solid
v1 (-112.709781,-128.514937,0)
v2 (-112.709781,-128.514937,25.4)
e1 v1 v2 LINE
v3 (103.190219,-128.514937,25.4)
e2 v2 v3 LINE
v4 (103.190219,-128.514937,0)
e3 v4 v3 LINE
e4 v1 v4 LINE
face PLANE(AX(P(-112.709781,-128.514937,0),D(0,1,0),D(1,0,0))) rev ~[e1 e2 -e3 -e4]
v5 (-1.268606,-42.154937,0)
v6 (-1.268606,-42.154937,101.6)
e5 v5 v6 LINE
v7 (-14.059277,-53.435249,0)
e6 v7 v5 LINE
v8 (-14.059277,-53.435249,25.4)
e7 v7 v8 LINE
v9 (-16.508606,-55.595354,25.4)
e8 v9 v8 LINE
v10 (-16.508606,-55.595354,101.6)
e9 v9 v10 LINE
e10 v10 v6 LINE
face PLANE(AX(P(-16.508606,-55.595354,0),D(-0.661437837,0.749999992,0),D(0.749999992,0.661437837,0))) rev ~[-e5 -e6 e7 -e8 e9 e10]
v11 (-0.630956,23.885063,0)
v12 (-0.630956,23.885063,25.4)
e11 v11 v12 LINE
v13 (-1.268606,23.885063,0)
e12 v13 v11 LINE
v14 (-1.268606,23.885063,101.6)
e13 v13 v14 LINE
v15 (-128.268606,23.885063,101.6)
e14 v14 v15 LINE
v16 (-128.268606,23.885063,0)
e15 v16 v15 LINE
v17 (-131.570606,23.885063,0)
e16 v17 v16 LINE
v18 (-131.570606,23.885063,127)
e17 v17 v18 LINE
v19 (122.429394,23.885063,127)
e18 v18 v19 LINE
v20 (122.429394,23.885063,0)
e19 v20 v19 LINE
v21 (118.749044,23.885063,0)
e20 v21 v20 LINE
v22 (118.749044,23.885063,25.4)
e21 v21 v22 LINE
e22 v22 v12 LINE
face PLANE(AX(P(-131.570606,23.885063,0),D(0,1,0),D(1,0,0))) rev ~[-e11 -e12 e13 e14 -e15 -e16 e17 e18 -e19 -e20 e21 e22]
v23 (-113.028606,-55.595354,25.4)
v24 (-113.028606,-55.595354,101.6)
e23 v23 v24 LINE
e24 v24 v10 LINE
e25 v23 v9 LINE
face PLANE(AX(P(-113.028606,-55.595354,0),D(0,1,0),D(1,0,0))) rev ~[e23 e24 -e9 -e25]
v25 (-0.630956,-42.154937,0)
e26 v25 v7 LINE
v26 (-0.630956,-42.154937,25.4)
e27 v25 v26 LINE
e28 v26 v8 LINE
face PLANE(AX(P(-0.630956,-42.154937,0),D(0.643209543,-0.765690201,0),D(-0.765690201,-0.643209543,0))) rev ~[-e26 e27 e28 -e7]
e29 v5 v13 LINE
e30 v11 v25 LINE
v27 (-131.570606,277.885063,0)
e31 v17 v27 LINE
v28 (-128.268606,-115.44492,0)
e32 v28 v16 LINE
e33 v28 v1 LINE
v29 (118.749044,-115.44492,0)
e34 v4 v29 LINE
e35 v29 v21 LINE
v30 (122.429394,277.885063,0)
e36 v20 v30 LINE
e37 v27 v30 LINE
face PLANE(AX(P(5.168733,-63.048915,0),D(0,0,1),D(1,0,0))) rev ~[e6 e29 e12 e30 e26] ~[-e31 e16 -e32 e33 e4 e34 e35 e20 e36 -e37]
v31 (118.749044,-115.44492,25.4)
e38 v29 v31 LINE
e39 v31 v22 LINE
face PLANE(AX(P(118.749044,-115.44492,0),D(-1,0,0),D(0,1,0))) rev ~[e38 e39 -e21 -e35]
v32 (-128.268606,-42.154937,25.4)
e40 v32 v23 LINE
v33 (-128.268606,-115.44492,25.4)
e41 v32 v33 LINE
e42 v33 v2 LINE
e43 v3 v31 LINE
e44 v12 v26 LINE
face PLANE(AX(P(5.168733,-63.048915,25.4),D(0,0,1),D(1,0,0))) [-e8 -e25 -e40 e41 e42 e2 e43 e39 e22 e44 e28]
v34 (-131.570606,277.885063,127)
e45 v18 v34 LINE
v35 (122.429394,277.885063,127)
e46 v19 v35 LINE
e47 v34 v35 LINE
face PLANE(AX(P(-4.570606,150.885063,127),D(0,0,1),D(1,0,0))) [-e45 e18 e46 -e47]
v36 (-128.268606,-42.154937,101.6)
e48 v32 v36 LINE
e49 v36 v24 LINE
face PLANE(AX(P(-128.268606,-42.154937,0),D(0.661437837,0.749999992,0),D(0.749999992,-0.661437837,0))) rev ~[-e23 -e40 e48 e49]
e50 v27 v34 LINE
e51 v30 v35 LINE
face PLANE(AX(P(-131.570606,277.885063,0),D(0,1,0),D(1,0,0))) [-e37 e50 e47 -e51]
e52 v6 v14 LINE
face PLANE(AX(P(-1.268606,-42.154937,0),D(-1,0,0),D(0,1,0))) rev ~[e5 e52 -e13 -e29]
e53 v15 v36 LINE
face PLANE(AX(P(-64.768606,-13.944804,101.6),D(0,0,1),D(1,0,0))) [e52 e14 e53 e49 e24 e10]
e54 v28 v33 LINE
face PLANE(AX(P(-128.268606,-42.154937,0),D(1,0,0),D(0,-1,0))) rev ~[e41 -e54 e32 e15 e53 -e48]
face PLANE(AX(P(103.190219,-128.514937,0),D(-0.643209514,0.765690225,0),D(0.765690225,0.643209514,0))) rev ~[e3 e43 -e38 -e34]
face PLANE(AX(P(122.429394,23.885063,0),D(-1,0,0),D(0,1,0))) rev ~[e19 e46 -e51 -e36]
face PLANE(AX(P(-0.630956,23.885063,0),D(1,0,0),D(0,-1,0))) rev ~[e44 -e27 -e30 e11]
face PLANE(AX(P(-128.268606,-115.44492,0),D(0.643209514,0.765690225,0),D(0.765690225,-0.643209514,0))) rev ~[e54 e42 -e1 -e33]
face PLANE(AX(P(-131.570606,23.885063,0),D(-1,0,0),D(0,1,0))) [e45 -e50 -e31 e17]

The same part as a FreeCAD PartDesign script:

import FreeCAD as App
import Part
import Sketcher

V = App.Vector
Q = App.Units.Quantity

doc = App.newDocument("Part")
params = doc.addObject("Spreadsheet::Sheet", "Params")
for row, (alias, value) in enumerate([
    ("sketch1_width", "10 in"),
    ("pad1_length", "5 in"),
    ("sketch2_width", "5 in"),
    ("sketch2_width2", "3.8 in"),
    ("sketch2_height", "2.6 in"),
    ("sketch2_length", "0.8 in"),
    ("pad2_length", "4 in"),
    ("sketch3_width", "4.7 in"),
    ("sketch3_width2", "3.8 in"),
    ("sketch3_height", "2.6 in"),
    ("sketch3_length", "0.8 in"),
    ("pad3_length", "1 in"),
], start=1):
    params.set(f"A{row}", alias)
    params.set(f"B{row}", "=" + value)
    params.setAlias(f"B{row}", alias)

body = doc.addObject("PartDesign::Body", "Body")

sketch1 = body.newObject("Sketcher::SketchObject", "Sketch")
sketch1.AttachmentSupport = (doc.getObject("XY_Plane"), [""])
sketch1.MapMode = "FlatFace"
sketch1.addGeometry(Part.LineSegment(V(-132, 278, 0), V(-132, 24, 0)), False)
sketch1.addGeometry(Part.LineSegment(V(-132, 24, 0), V(122, 24, 0)), False)
sketch1.addGeometry(Part.LineSegment(V(122, 24, 0), V(122, 278, 0)), False)
sketch1.addGeometry(Part.LineSegment(V(122, 278, 0), V(-132, 278, 0)), False)
sketch1.addConstraint(Sketcher.Constraint("Coincident", 0, 2, 1, 1))
sketch1.addConstraint(Sketcher.Constraint("Coincident", 1, 2, 2, 1))
sketch1.addConstraint(Sketcher.Constraint("Coincident", 2, 2, 3, 1))
sketch1.addConstraint(Sketcher.Constraint("Coincident", 3, 2, 0, 1))
sketch1.addConstraint(Sketcher.Constraint("Vertical", 0))
sketch1.addConstraint(Sketcher.Constraint("Horizontal", 1))
sketch1.addConstraint(Sketcher.Constraint("Vertical", 2))
sketch1.addConstraint(Sketcher.Constraint("Horizontal", 3))
sketch1.addConstraint(Sketcher.Constraint("Equal", 3, 0))
sketch1.addConstraint(Sketcher.Constraint("DistanceX", 1, 1, 1, 2, Q("10 in")))
sketch1.addConstraint(Sketcher.Constraint("DistanceX", 0, 2, -1, 1, Q("131.570606 mm")))
sketch1.addConstraint(Sketcher.Constraint("DistanceY", -1, 1, 0, 2, Q("23.885063 mm")))
sketch1.setExpression("Constraints[9]", "Params.sketch1_width")
pad1 = body.newObject("PartDesign::Pad", "Pad")
pad1.Profile = sketch1
pad1.setExpression("Length", "Params.pad1_length")

sketch2 = body.newObject("Sketcher::SketchObject", "Sketch001")
sketch2.AttachmentSupport = (doc.getObject("XY_Plane"), [""])
sketch2.MapMode = "FlatFace"
sketch2.addGeometry(Part.LineSegment(V(-1, 24, 0), V(-128, 24, 0)), False)
sketch2.addGeometry(Part.LineSegment(V(-128, 24, 0), V(-128, -42, 0)), False)
sketch2.addGeometry(Part.LineSegment(V(-128, -42, 0), V(-113, -56, 0)), False)
sketch2.addGeometry(Part.LineSegment(V(-113, -56, 0), V(-17, -56, 0)), False)
sketch2.addGeometry(Part.LineSegment(V(-17, -56, 0), V(-1, -42, 0)), False)
sketch2.addGeometry(Part.LineSegment(V(-1, -42, 0), V(-1, 24, 0)), False)
sketch2.addConstraint(Sketcher.Constraint("Coincident", 0, 2, 1, 1))
sketch2.addConstraint(Sketcher.Constraint("Coincident", 1, 2, 2, 1))
sketch2.addConstraint(Sketcher.Constraint("Coincident", 2, 2, 3, 1))
sketch2.addConstraint(Sketcher.Constraint("Coincident", 3, 2, 4, 1))
sketch2.addConstraint(Sketcher.Constraint("Coincident", 4, 2, 5, 1))
sketch2.addConstraint(Sketcher.Constraint("Coincident", 5, 2, 0, 1))
sketch2.addConstraint(Sketcher.Constraint("Horizontal", 0))
sketch2.addConstraint(Sketcher.Constraint("Vertical", 1))
sketch2.addConstraint(Sketcher.Constraint("Horizontal", 3))
sketch2.addConstraint(Sketcher.Constraint("Vertical", 5))
sketch2.addConstraint(Sketcher.Constraint("Horizontal", 1, 2, 4, 2))
sketch2.addConstraint(Sketcher.Constraint("Equal", 2, 4))
sketch2.addConstraint(Sketcher.Constraint("DistanceX", 0, 2, 0, 1, Q("5 in")))
sketch2.addConstraint(Sketcher.Constraint("DistanceX", 3, 1, 3, 2, Q("3.8 in")))
sketch2.addConstraint(Sketcher.Constraint("DistanceY", 1, 2, 1, 1, Q("2.6 in")))
sketch2.addConstraint(Sketcher.Constraint("Distance", 2, Q("0.8 in")))
sketch2.addConstraint(Sketcher.Constraint("DistanceX", 0, 2, -1, 1, Q("128.268606 mm")))
sketch2.addConstraint(Sketcher.Constraint("DistanceY", -1, 1, 0, 2, Q("23.885063 mm")))
sketch2.setExpression("Constraints[12]", "Params.sketch2_width")
sketch2.setExpression("Constraints[13]", "Params.sketch2_width2")
sketch2.setExpression("Constraints[14]", "Params.sketch2_height")
sketch2.setExpression("Constraints[15]", "Params.sketch2_length")
pad2 = body.newObject("PartDesign::Pad", "Pad001")
pad2.Profile = sketch2
pad2.setExpression("Length", "Params.pad2_length")

sketch3 = body.newObject("Sketcher::SketchObject", "Sketch002")
sketch3.AttachmentSupport = (doc.getObject("XY_Plane"), [""])
sketch3.MapMode = "FlatFace"
sketch3.addGeometry(Part.LineSegment(V(103, -129, 0), V(119, -115, 0)), False)
sketch3.addGeometry(Part.LineSegment(V(119, -115, 0), V(119, 24, 0)), False)
sketch3.addGeometry(Part.LineSegment(V(119, 24, 0), V(-1, 24, 0)), False)
sketch3.addGeometry(Part.LineSegment(V(-1, 24, 0), V(-1, -42, 0)), False)
sketch3.addGeometry(Part.LineSegment(V(-1, -42, 0), V(-16, -55, 0)), False)
sketch3.addGeometry(Part.LineSegment(V(-16, -55, 0), V(-113, -55, 0)), False)
sketch3.addGeometry(Part.LineSegment(V(-113, -55, 0), V(-128, -42, 0)), False)
sketch3.addGeometry(Part.LineSegment(V(-128, -42, 0), V(-128, -115, 0)), False)
sketch3.addGeometry(Part.LineSegment(V(-128, -115, 0), V(-113, -129, 0)), False)
sketch3.addGeometry(Part.LineSegment(V(-113, -129, 0), V(103, -129, 0)), False)
sketch3.addConstraint(Sketcher.Constraint("Coincident", 0, 2, 1, 1))
sketch3.addConstraint(Sketcher.Constraint("Coincident", 1, 2, 2, 1))
sketch3.addConstraint(Sketcher.Constraint("Coincident", 2, 2, 3, 1))
sketch3.addConstraint(Sketcher.Constraint("Coincident", 3, 2, 4, 1))
sketch3.addConstraint(Sketcher.Constraint("Coincident", 4, 2, 5, 1))
sketch3.addConstraint(Sketcher.Constraint("Coincident", 5, 2, 6, 1))
sketch3.addConstraint(Sketcher.Constraint("Coincident", 6, 2, 7, 1))
sketch3.addConstraint(Sketcher.Constraint("Coincident", 7, 2, 8, 1))
sketch3.addConstraint(Sketcher.Constraint("Coincident", 8, 2, 9, 1))
sketch3.addConstraint(Sketcher.Constraint("Coincident", 9, 2, 0, 1))
sketch3.addConstraint(Sketcher.Constraint("Vertical", 1))
sketch3.addConstraint(Sketcher.Constraint("Horizontal", 2))
sketch3.addConstraint(Sketcher.Constraint("Vertical", 3))
sketch3.addConstraint(Sketcher.Constraint("Horizontal", 5))
sketch3.addConstraint(Sketcher.Constraint("Vertical", 7))
sketch3.addConstraint(Sketcher.Constraint("Horizontal", 9))
sketch3.addConstraint(Sketcher.Constraint("Parallel", 0, 4))
sketch3.addConstraint(Sketcher.Constraint("Parallel", 6, 8))
sketch3.addConstraint(Sketcher.Constraint("Horizontal", 3, 2, 6, 2))
sketch3.addConstraint(Sketcher.Constraint("Horizontal", 0, 2, 7, 2))
sketch3.addConstraint(Sketcher.Constraint("Vertical", 5, 2, 8, 2))
sketch3.addConstraint(Sketcher.Constraint("Equal", 4, 6))
sketch3.addConstraint(Sketcher.Constraint("DistanceX", 2, 2, 2, 1, Q("4.7 in")))
sketch3.addConstraint(Sketcher.Constraint("DistanceX", 5, 2, 5, 1, Q("3.8 in")))
sketch3.addConstraint(Sketcher.Constraint("DistanceY", 3, 2, 3, 1, Q("2.6 in")))
sketch3.addConstraint(Sketcher.Constraint("DistanceY", 9, 2, 1, 2, Q("6 in")))
sketch3.addConstraint(Sketcher.Constraint("Distance", 0, Q("0.8 in")))
sketch3.addConstraint(Sketcher.Constraint("DistanceY", 1, 1, 1, 2, Q("139.329983 mm")))
sketch3.addConstraint(Sketcher.Constraint("DistanceY", 0, 2, -1, 1, Q("115.44492 mm")))
sketch3.addConstraint(Sketcher.Constraint("DistanceX", 4, 2, -1, 1, Q("16.189781 mm")))
sketch3.setExpression("Constraints[22]", "Params.sketch3_width")
sketch3.setExpression("Constraints[23]", "Params.sketch3_width2")
sketch3.setExpression("Constraints[24]", "Params.sketch3_height")
sketch3.setExpression("Constraints[26]", "Params.sketch3_length")
pad3 = body.newObject("PartDesign::Pad", "Pad002")
pad3.Profile = sketch3
pad3.setExpression("Length", "Params.pad3_length")

doc.recompute()
